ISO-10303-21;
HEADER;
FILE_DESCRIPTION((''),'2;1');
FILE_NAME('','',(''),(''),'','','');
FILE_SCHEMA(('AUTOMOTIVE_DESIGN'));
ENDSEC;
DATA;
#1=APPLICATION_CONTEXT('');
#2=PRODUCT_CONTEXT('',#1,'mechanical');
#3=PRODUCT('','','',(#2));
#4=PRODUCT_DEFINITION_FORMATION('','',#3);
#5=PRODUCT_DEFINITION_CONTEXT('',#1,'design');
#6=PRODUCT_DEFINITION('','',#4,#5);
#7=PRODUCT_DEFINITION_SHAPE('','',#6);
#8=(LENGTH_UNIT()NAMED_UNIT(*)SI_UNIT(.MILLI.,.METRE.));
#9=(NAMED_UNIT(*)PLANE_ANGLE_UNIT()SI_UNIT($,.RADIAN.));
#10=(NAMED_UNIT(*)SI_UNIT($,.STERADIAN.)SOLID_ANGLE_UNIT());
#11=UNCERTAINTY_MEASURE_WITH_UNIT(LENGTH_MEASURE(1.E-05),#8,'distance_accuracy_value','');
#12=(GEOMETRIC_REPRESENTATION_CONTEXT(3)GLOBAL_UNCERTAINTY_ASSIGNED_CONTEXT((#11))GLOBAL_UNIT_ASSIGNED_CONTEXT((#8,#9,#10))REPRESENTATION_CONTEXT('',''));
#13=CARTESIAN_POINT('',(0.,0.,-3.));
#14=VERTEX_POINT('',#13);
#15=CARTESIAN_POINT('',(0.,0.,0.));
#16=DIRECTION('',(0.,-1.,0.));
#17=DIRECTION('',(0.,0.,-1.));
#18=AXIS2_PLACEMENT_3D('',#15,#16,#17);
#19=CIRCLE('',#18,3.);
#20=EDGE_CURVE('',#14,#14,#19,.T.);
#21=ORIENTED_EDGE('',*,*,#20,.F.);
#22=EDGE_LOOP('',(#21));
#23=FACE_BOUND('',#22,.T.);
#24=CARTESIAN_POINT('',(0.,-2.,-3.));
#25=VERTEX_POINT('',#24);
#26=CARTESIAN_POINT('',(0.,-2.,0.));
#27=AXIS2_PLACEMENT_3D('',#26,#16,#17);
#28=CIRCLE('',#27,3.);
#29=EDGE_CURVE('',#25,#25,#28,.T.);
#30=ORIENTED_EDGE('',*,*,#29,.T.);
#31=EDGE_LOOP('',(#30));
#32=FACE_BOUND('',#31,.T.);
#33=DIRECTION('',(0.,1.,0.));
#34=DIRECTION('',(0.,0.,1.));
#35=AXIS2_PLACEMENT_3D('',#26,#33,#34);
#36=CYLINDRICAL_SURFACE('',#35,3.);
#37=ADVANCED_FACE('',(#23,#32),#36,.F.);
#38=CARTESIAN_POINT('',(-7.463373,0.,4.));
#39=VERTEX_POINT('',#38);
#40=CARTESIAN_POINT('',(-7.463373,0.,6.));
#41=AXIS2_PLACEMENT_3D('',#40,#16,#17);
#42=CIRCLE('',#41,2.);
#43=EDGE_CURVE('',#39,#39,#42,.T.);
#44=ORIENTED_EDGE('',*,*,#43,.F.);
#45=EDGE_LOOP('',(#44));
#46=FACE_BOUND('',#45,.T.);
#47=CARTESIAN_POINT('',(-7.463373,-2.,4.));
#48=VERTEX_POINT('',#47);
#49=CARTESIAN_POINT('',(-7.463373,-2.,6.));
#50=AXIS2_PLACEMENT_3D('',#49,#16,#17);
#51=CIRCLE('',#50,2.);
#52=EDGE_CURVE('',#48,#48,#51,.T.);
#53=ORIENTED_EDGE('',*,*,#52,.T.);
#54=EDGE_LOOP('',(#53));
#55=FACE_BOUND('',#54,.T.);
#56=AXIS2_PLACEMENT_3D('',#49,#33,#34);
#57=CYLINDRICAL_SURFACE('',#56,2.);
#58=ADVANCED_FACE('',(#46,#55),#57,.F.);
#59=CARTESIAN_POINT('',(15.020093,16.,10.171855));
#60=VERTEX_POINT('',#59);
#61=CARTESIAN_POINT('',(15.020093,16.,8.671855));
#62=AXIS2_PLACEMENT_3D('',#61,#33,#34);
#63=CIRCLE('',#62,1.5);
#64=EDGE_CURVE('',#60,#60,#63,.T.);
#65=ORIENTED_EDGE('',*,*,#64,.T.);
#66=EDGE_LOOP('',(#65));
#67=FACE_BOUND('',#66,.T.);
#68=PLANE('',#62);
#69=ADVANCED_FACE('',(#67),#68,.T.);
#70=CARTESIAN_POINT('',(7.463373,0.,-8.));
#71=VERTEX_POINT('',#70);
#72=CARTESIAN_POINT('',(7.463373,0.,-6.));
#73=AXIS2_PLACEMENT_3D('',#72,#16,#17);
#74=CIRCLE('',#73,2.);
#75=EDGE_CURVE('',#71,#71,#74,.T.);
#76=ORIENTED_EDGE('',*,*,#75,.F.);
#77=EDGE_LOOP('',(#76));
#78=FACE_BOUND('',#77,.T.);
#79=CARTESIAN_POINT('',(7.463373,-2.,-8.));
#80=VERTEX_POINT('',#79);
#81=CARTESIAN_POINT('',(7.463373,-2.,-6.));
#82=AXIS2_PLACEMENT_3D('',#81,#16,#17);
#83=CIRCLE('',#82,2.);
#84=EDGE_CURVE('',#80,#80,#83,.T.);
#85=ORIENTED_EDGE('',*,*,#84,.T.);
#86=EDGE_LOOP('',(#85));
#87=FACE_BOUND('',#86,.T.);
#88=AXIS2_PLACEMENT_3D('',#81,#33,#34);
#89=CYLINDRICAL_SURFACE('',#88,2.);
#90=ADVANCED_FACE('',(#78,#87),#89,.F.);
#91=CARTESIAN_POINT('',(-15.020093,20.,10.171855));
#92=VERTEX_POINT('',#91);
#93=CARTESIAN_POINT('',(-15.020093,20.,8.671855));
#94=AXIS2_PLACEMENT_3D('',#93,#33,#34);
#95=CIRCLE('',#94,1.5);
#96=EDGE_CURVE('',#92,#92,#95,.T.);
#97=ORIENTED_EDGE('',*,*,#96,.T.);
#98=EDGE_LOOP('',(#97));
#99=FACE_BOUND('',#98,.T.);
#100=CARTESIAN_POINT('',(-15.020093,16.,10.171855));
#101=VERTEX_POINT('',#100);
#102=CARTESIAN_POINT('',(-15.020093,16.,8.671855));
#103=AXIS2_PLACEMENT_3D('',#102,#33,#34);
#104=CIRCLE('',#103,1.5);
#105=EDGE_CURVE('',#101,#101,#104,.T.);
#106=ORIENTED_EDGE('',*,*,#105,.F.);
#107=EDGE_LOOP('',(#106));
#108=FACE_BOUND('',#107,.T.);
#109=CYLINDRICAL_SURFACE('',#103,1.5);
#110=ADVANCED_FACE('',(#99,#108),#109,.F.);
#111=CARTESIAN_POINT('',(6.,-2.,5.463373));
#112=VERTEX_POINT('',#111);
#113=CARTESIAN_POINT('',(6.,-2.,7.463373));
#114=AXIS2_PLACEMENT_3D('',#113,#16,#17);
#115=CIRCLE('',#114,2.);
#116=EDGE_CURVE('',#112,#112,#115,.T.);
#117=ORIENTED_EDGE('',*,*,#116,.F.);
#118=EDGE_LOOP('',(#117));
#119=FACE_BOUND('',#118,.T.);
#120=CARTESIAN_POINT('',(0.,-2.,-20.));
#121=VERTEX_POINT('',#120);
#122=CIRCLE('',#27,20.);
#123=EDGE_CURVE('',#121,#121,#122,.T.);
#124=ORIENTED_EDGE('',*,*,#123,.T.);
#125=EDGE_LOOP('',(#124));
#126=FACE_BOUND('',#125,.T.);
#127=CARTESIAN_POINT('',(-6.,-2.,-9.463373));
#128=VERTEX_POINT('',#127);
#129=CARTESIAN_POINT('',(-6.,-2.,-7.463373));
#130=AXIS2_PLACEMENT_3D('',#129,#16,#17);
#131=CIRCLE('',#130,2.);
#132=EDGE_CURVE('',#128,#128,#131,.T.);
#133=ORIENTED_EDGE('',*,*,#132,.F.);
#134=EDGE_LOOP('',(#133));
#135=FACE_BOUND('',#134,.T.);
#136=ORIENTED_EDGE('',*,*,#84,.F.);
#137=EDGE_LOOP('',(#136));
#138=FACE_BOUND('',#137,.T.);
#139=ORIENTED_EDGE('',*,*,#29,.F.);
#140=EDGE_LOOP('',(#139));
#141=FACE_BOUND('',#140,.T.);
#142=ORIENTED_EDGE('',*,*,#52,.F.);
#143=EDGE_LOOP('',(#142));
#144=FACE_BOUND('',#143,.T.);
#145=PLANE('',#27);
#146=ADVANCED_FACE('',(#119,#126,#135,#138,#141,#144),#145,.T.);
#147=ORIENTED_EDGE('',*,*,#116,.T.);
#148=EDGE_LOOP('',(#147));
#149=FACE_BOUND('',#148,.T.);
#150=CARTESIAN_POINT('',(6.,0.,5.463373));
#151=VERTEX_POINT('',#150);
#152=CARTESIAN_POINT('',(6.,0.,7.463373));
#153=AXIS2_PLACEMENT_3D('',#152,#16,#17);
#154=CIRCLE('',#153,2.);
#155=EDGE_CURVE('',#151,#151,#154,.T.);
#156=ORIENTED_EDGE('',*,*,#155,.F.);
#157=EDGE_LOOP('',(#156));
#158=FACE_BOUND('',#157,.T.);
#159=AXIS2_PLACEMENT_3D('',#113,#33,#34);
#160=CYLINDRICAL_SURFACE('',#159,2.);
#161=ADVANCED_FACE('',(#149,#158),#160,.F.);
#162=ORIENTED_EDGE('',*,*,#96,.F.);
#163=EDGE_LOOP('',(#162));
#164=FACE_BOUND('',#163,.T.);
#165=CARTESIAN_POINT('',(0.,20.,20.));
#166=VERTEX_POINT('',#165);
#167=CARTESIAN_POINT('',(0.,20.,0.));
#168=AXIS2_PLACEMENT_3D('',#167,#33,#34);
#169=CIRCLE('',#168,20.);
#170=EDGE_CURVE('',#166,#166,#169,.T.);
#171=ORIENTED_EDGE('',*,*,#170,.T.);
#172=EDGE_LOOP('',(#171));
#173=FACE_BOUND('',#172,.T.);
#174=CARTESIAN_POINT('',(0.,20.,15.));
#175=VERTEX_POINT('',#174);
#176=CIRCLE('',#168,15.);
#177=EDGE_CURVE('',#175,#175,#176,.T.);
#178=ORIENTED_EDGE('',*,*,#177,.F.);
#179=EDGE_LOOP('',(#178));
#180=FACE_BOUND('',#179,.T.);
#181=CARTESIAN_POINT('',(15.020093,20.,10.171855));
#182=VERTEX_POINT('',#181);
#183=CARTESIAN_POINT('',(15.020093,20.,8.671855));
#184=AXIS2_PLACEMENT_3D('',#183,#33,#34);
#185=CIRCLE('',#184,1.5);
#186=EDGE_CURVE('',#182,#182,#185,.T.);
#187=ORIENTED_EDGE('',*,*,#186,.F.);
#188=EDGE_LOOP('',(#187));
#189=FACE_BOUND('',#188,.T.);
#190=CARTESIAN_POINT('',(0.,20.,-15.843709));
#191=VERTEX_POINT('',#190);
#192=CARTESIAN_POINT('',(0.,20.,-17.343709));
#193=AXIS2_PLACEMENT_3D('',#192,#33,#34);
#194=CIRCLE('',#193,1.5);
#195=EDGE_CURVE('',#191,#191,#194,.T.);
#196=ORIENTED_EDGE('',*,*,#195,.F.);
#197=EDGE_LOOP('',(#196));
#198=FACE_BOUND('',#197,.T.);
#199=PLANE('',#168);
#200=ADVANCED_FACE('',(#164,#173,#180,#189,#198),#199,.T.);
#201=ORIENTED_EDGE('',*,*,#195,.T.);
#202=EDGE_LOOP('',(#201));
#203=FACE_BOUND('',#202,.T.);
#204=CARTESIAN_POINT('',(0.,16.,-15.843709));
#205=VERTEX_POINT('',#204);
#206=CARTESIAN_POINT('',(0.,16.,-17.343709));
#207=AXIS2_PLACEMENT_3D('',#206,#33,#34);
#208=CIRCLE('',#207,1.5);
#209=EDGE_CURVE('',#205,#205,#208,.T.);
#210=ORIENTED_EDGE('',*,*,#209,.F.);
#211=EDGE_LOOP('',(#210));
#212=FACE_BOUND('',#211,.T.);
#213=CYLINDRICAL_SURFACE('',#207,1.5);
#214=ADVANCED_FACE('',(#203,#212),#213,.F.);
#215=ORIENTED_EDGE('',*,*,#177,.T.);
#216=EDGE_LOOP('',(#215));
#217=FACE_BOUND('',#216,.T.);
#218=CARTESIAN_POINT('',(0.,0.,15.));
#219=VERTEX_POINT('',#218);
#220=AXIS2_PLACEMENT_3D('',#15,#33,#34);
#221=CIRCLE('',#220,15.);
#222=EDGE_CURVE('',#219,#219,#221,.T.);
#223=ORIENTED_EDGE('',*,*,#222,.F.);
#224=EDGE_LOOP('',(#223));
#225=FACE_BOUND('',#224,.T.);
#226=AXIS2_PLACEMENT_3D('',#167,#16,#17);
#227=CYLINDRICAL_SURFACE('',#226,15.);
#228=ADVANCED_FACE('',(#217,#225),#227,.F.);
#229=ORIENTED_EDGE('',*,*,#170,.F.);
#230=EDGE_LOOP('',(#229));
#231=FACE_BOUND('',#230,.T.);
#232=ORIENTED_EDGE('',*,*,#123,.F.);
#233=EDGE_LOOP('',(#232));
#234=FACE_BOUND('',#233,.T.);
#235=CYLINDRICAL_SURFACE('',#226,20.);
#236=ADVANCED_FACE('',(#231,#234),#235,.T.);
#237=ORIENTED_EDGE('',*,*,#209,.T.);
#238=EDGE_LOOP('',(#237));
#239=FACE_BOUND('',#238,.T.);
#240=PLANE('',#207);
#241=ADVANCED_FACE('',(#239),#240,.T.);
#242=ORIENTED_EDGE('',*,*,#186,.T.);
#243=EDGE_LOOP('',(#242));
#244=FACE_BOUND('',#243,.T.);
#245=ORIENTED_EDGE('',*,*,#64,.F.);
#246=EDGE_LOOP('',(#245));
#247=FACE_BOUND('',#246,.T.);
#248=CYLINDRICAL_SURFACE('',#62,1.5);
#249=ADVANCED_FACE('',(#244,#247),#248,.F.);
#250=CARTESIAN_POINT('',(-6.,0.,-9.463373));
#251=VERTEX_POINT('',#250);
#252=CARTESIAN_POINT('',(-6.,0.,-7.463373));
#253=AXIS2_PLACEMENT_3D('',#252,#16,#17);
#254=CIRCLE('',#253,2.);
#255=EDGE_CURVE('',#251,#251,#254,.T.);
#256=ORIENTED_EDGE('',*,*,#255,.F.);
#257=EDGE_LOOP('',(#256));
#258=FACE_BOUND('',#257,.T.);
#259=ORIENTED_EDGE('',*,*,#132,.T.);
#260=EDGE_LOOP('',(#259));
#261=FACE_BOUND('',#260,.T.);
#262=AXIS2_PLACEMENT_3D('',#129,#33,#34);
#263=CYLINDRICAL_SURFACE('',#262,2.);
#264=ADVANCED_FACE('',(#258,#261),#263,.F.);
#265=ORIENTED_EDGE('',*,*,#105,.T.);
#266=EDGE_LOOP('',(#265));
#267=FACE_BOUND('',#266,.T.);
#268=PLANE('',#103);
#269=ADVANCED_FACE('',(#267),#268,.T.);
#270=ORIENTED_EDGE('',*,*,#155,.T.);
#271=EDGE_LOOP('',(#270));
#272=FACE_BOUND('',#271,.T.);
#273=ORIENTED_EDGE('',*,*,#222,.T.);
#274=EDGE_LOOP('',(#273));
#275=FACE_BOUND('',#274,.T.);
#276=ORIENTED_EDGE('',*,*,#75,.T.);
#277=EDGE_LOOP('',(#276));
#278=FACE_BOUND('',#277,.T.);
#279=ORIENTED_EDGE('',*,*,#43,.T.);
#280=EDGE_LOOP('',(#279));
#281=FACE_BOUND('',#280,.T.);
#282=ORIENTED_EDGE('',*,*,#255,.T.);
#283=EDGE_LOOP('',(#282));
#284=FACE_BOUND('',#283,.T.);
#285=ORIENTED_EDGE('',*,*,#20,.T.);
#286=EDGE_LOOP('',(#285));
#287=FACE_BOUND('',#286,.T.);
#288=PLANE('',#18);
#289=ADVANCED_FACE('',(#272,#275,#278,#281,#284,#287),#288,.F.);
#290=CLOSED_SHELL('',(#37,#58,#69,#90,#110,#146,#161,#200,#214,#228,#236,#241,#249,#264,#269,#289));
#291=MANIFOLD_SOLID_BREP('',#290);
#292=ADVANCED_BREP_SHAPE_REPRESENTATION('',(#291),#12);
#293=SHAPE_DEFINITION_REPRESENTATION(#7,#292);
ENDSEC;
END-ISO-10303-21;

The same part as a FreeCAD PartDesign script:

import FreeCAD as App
import Part
import Sketcher

doc = App.newDocument("Part")
body = doc.addObject("PartDesign::Body", "Body")

# Sketch on XZ plane
sketch1 = body.newObject("Sketcher::SketchObject", "Sketch")
sketch1.AttachmentSupport = (doc.getObject("XZ_Plane"), [""])
sketch1.MapMode = "FlatFace"
sketch1.addGeometry(Part.Circle(App.Vector(0, 0, 0), App.Vector(0, 0, 1), 20), False)
sketch1.addGeometry(Part.Circle(App.Vector(0, 0, 0), App.Vector(0, 0, 1), 15), False)
sketch1.addConstraint(Sketcher.Constraint("Coincident", 0, 3, -1, 1))
sketch1.addConstraint(Sketcher.Constraint("Coincident", 1, 3, -1, 1))
sketch1.addConstraint(Sketcher.Constraint("Diameter", 0, 40.0))
sketch1.addConstraint(Sketcher.Constraint("Diameter", 1, 30.0))
pad1 = body.newObject("PartDesign::Pad", "Pad")
pad1.Profile = sketch1
pad1.Length = 20
pad1.Reversed = True

# Sketch on XZ plane
sketch2 = body.newObject("Sketcher::SketchObject", "Sketch001")
sketch2.AttachmentSupport = (doc.getObject("XZ_Plane"), [""])
sketch2.MapMode = "FlatFace"
sketch2.addGeometry(Part.Circle(App.Vector(0, 0, 0), App.Vector(0, 0, 1), 20), False)
sketch2.addGeometry(Part.Circle(App.Vector(-6, -7.5, 0), App.Vector(0, 0, 1), 2), False)
sketch2.addGeometry(Part.Circle(App.Vector(7.5, -6, 0), App.Vector(0, 0, 1), 2), False)
sketch2.addGeometry(Part.Circle(App.Vector(-7.5, 6, 0), App.Vector(0, 0, 1), 2), False)
sketch2.addGeometry(Part.Circle(App.Vector(0, 0, 0), App.Vector(0, 0, 1), 3), False)
sketch2.addGeometry(Part.Circle(App.Vector(6, 7.5, 0), App.Vector(0, 0, 1), 2), False)
sketch2.addConstraint(Sketcher.Constraint("Coincident", 0, 3, -1, 1))
sketch2.addConstraint(Sketcher.Constraint("Coincident", 4, 3, -1, 1))
sketch2.addConstraint(Sketcher.Constraint("Equal", 1, 2))
sketch2.addConstraint(Sketcher.Constraint("Equal", 2, 3))
sketch2.addConstraint(Sketcher.Constraint("Equal", 3, 5))
sketch2.addConstraint(Sketcher.Constraint("Symmetric", 2, 3, 3, 3, -1, 1))
sketch2.addConstraint(Sketcher.Constraint("Symmetric", 1, 3, 5, 3, -1, 1))
sketch2.addConstraint(Sketcher.Constraint("Diameter", 0, 40.0))
sketch2.addConstraint(Sketcher.Constraint("Diameter", 1, 4.0))
sketch2.addConstraint(Sketcher.Constraint("Diameter", 4, 6.0))
sketch2.addConstraint(Sketcher.Constraint("DistanceX", 1, 3, -1, 1, 6.0))
sketch2.addConstraint(Sketcher.Constraint("DistanceY", 2, 3, -1, 1, 6.0))
sketch2.addConstraint(Sketcher.Constraint("DistanceY", 1, 3, -1, 1, 7.463373))
sketch2.addConstraint(Sketcher.Constraint("DistanceX", -1, 1, 2, 3, 7.463373))
pad2 = body.newObject("PartDesign::Pad", "Pad001")
pad2.Profile = sketch2
pad2.Length = 2

# Sketch on XZ plane
sketch3 = body.newObject("Sketcher::SketchObject", "Sketch002")
sketch3.AttachmentSupport = (doc.getObject("XZ_Plane"), [""])
sketch3.MapMode = "FlatFace"
sketch3.AttachmentOffset = App.Placement(App.Vector(0, 0, -20), App.Rotation())
sketch3.addGeometry(Part.Circle(App.Vector(0, -17.3, 0), App.Vector(0, 0, 1), 1.5), False)
sketch3.addGeometry(Part.Circle(App.Vector(15, 8.7, 0), App.Vector(0, 0, 1), 1.5), False)
sketch3.addGeometry(Part.Circle(App.Vector(-15, 8.7, 0), App.Vector(0, 0, 1), 1.5), False)
sketch3.addConstraint(Sketcher.Constraint("Equal", 0, 1))
sketch3.addConstraint(Sketcher.Constraint("Equal", 1, 2))
sketch3.addConstraint(Sketcher.Constraint("Symmetric", 1, 3, 2, 3, -2))
sketch3.addConstraint(Sketcher.Constraint("PointOnObject", 0, 3, -2))
sketch3.addConstraint(Sketcher.Constraint("Diameter", 0, 3.0))
sketch3.addConstraint(Sketcher.Constraint("DistanceY", 0, 3, -1, 1, 17.343709))
sketch3.addConstraint(Sketcher.Constraint("DistanceX", -1, 1, 1, 3, 15.020093))
sketch3.addConstraint(Sketcher.Constraint("DistanceY", -1, 1, 1, 3, 8.671855))
pocket1 = body.newObject("PartDesign::Pocket", "Pocket")
pocket1.Profile = sketch3
pocket1.Length = 4
pocket1.Reversed = True

doc.recompute()
